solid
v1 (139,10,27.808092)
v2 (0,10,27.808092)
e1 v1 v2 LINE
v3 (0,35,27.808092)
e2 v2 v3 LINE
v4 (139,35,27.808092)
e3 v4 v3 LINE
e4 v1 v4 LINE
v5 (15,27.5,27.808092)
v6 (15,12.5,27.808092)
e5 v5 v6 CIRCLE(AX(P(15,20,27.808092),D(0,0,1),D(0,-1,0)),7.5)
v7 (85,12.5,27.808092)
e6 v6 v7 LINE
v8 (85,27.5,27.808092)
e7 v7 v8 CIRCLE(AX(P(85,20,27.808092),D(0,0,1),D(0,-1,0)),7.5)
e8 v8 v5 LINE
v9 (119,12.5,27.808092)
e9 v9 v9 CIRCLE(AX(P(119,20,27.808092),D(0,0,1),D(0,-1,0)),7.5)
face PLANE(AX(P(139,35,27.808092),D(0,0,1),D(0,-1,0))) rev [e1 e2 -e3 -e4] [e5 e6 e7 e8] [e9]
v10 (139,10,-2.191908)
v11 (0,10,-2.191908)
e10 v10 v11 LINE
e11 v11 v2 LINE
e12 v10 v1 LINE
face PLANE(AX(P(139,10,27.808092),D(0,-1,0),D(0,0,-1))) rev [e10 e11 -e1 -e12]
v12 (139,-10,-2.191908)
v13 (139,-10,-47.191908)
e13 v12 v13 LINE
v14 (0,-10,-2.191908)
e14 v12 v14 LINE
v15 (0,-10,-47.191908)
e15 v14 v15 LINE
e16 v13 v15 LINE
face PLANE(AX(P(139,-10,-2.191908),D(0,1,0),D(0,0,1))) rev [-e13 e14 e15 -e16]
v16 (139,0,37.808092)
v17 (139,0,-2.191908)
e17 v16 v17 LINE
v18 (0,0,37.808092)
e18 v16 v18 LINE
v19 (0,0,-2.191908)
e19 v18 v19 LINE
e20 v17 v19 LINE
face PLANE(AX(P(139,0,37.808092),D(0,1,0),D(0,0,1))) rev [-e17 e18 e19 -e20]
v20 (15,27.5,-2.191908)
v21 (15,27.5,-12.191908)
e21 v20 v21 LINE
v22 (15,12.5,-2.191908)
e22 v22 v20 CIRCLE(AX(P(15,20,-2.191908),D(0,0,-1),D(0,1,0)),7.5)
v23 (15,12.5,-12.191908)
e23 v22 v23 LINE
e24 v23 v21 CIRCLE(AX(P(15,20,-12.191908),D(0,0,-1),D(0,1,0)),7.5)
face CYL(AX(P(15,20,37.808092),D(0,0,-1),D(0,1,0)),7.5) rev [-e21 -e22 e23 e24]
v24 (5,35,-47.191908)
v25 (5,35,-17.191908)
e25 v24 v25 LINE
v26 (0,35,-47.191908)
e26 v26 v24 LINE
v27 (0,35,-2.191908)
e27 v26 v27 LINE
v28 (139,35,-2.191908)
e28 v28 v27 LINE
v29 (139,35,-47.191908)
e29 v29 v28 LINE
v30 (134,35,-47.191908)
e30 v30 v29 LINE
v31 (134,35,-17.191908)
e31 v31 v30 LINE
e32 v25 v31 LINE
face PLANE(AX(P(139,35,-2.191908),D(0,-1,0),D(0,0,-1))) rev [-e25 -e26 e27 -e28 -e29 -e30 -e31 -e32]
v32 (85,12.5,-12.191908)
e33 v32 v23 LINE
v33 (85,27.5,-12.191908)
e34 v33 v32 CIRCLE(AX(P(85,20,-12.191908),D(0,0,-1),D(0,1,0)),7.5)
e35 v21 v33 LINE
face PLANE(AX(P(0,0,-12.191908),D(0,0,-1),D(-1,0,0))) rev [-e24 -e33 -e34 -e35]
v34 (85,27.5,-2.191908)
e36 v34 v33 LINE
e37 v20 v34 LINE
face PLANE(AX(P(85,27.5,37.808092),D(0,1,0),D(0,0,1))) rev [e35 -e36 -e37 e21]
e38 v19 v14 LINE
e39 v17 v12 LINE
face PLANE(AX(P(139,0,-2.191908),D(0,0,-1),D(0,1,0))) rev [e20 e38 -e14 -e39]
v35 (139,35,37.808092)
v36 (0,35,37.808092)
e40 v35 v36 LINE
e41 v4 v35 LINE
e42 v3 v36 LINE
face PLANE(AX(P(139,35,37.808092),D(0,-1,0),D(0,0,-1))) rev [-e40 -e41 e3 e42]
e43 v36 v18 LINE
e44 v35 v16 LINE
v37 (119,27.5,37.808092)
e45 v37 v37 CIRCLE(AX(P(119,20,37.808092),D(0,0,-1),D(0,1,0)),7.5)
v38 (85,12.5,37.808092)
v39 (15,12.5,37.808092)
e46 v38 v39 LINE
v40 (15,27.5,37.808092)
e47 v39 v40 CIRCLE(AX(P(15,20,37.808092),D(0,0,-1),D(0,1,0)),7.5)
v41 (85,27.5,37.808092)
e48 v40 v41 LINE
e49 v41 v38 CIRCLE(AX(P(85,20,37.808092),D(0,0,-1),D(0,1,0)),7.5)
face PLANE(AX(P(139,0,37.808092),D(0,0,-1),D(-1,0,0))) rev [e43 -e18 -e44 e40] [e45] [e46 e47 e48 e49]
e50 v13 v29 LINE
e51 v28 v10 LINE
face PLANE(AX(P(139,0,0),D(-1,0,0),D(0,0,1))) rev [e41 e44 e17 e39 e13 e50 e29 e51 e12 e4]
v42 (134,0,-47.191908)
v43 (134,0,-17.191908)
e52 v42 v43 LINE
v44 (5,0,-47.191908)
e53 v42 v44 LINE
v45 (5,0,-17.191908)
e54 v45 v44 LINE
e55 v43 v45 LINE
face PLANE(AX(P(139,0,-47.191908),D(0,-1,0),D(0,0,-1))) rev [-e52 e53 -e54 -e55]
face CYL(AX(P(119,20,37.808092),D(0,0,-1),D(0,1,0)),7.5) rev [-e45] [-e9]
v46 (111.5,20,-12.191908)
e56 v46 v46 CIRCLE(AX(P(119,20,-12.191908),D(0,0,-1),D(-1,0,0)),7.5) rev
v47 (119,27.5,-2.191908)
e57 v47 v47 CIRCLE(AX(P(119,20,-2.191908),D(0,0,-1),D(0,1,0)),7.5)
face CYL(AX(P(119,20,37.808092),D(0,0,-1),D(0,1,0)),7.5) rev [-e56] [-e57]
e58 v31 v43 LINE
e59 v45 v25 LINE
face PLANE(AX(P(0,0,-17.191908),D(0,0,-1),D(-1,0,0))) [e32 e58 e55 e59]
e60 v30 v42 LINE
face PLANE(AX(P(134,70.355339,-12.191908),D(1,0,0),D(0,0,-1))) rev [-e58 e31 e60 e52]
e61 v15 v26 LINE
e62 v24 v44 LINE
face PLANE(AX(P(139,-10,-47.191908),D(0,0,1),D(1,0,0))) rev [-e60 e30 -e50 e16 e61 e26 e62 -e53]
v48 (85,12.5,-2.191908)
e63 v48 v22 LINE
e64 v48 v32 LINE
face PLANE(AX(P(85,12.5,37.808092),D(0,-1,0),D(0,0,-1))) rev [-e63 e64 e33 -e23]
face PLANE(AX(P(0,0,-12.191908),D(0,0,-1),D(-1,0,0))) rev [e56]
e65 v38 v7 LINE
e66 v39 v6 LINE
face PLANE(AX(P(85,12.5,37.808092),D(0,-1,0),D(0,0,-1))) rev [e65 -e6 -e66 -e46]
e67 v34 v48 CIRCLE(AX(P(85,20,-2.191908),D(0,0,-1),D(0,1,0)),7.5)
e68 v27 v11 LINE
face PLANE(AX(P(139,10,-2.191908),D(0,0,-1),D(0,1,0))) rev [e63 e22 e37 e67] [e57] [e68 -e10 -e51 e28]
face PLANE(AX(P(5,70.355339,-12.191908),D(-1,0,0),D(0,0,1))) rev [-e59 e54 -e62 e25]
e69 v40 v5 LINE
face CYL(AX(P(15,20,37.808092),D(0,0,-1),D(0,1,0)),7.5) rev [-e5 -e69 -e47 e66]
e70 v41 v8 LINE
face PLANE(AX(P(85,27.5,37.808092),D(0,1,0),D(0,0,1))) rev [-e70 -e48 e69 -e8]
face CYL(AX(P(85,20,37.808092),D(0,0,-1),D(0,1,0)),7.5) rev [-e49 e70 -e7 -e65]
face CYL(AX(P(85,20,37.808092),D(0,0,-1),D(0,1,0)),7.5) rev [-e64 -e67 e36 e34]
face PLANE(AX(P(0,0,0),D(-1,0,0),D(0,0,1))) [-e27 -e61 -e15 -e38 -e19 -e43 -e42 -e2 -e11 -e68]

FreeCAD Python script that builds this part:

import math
import FreeCAD as App
import Part
import Sketcher
from FreeCAD import Vector

doc = App.newDocument("Part")
params = doc.addObject("Spreadsheet::Sheet", "Params")
for row, (alias, value) in enumerate([
    ("sketch1_width", "25 mm"),
    ("sketch1_width2", "35 mm"),
    ("sketch1_height", "40 mm"),
    ("pad1_length", "139 mm"),
    ("sketch2_diameter", "15 mm"),
    ("sketch2_width", "70 mm"),
    ("sketch3_width", "5 mm"),
    ("sketch3_height", "35 mm"),
    ("pad2_length", "35 mm"),
    ("sketch4_width", "129 mm"),
    ("sketch4_height", "35 mm"),
    ("pad3_length", "5 mm"),
], start=1):
    params.set(f"A{row}", alias)
    params.set(f"B{row}", "=" + value)
    params.setAlias(f"B{row}", alias)

body = doc.addObject("PartDesign::Body", "Body")

sketch1 = body.newObject("Sketcher::SketchObject", "Sketch")
sketch1.AttachmentSupport = (doc.getObject("YZ_Plane"), [""])
sketch1.MapMode = "FlatFace"
sketch1.addGeometry([
    Part.LineSegment(Vector(10, 27.808092, 0), Vector(35, 27.808092, 0)),
    Part.LineSegment(Vector(35, 27.808092, 0), Vector(35, 37.808092, 0)),
    Part.LineSegment(Vector(35, 37.808092, 0), Vector(0, 37.808092, 0)),
    Part.LineSegment(Vector(0, 37.808092, 0), Vector(0, -2.191908, 0)),
    Part.LineSegment(Vector(0, -2.191908, 0), Vector(-10, -2.191908, 0)),
    Part.LineSegment(Vector(-10, -2.191908, 0), Vector(-10, -47.191908, 0)),
    Part.LineSegment(Vector(-10, -47.191908, 0), Vector(0, -47.191908, 0)),
    Part.LineSegment(Vector(0, -47.191908, 0), Vector(0, -12.191908, 0)),
    Part.LineSegment(Vector(0, -12.191908, 0), Vector(35, -12.191908, 0)),
    Part.LineSegment(Vector(35, -12.191908, 0), Vector(35, -2.191908, 0)),
    Part.LineSegment(Vector(35, -2.191908, 0), Vector(10, -2.191908, 0)),
    Part.LineSegment(Vector(10, -2.191908, 0), Vector(10, 27.808092, 0)),
], False)
sketch1.addConstraint([
    Sketcher.Constraint("Coincident", 0, 2, 1, 1),
    Sketcher.Constraint("Coincident", 1, 2, 2, 1),
    Sketcher.Constraint("Coincident", 2, 2, 3, 1),
    Sketcher.Constraint("Coincident", 3, 2, 4, 1),
    Sketcher.Constraint("Coincident", 4, 2, 5, 1),
    Sketcher.Constraint("Coincident", 5, 2, 6, 1),
    Sketcher.Constraint("Coincident", 6, 2, 7, 1),
    Sketcher.Constraint("Coincident", 7, 2, 8, 1),
    Sketcher.Constraint("Coincident", 8, 2, 9, 1),
    Sketcher.Constraint("Coincident", 9, 2, 10, 1),
    Sketcher.Constraint("Coincident", 10, 2, 11, 1),
    Sketcher.Constraint("Coincident", 11, 2, 0, 1),
    Sketcher.Constraint("Horizontal", 0),
    Sketcher.Constraint("Vertical", 1),
    Sketcher.Constraint("Horizontal", 2),
    Sketcher.Constraint("Vertical", 3),
    Sketcher.Constraint("Horizontal", 4),
    Sketcher.Constraint("Vertical", 5),
    Sketcher.Constraint("Horizontal", 6),
    Sketcher.Constraint("Vertical", 7),
    Sketcher.Constraint("Horizontal", 8),
    Sketcher.Constraint("Vertical", 9),
    Sketcher.Constraint("Horizontal", 10),
    Sketcher.Constraint("Vertical", 11),
    Sketcher.Constraint("Symmetric", 4, 2, 10, 2, -2),
    Sketcher.Constraint("PointOnObject", 2, 2, -2),
    Sketcher.Constraint("PointOnObject", 6, 2, -2),
    Sketcher.Constraint("Vertical", 1, 2, 8, 2),
    Sketcher.Constraint("Equal", 6, 1),
    Sketcher.Constraint("Equal", 8, 7),
    Sketcher.Constraint("Equal", 1, 9),
    Sketcher.Constraint("DistanceX", 0, 1, 0, 2, 25.0),
    Sketcher.Constraint("DistanceX", 2, 2, 2, 1, 35.0),
    Sketcher.Constraint("DistanceY", 3, 2, 3, 1, 40.0),
    Sketcher.Constraint("DistanceY", -1, 1, 0, 2, 27.808092),
])
sketch1.setExpression("Constraints[31]", "Params.sketch1_width")
sketch1.setExpression("Constraints[32]", "Params.sketch1_width2")
sketch1.setExpression("Constraints[33]", "Params.sketch1_height")
pad1 = body.newObject("PartDesign::Pad", "Pad")
pad1.Profile = sketch1
pad1.setExpression("Length", "Params.pad1_length")

sketch2 = body.newObject("Sketcher::SketchObject", "Sketch001")
sketch2.AttachmentSupport = (doc.getObject("XY_Plane"), [""])
sketch2.MapMode = "FlatFace"
sketch2.AttachmentOffset = App.Placement(Vector(0, 0, -12.191908), App.Rotation())
sketch2.addGeometry([
    Part.Circle(Vector(119, 20, 0), Vector(0, 0, 1), 7.5),
    Part.LineSegment(Vector(15, 27.5, 0), Vector(85, 27.5, 0)),
    Part.ArcOfCircle(Part.Circle(Vector(85, 20, 0), Vector(0, 0, 1), 7.5), math.radians(-90), math.radians(90)),
    Part.LineSegment(Vector(85, 12.5, 0), Vector(15, 12.5, 0)),
    Part.ArcOfCircle(Part.Circle(Vector(15, 20, 0), Vector(0, 0, 1), 7.5), math.radians(90), math.radians(270)),
], False)
sketch2.addConstraint([
    Sketcher.Constraint("Tangent", 1, 2, 2, 2),
    Sketcher.Constraint("Tangent", 2, 1, 3, 1),
    Sketcher.Constraint("Tangent", 3, 2, 4, 2),
    Sketcher.Constraint("Tangent", 4, 1, 1, 1),
    Sketcher.Constraint("Horizontal", 1),
    Sketcher.Constraint("Horizontal", 3),
    Sketcher.Constraint("Equal", 0, 2),
    Sketcher.Constraint("Horizontal", 0, 3, 2, 3),
    Sketcher.Constraint("Diameter", 0, 15.0),
    Sketcher.Constraint("DistanceX", 1, 1, 1, 2, 70.0),
    Sketcher.Constraint("DistanceX", -1, 1, 0, 3, 119.0),
    Sketcher.Constraint("DistanceY", -1, 1, 0, 3, 20.0),
    Sketcher.Constraint("DistanceX", -1, 1, 2, 3, 85.0),
])
sketch2.setExpression("Constraints[8]", "Params.sketch2_diameter")
sketch2.setExpression("Constraints[9]", "Params.sketch2_width")
pocket1 = body.newObject("PartDesign::Pocket", "Pocket")
pocket1.Profile = sketch2
pocket1.Type = "ThroughAll"
pocket1.Reversed = True

sketch3 = body.newObject("Sketcher::SketchObject", "Sketch002")
sketch3.AttachmentSupport = (doc.getObject("XZ_Plane"), [""])
sketch3.MapMode = "FlatFace"
sketch3.addGeometry([
    Part.LineSegment(Vector(0, -47.191908, 0), Vector(0, -12.191908, 0)),
    Part.LineSegment(Vector(0, -12.191908, 0), Vector(5, -12.191908, 0)),
    Part.LineSegment(Vector(5, -12.191908, 0), Vector(5, -47.191908, 0)),
    Part.LineSegment(Vector(5, -47.191908, 0), Vector(0, -47.191908, 0)),
    Part.LineSegment(Vector(134, -47.191908, 0), Vector(134, -12.191908, 0)),
    Part.LineSegment(Vector(134, -12.191908, 0), Vector(139, -12.191908, 0)),
    Part.LineSegment(Vector(139, -12.191908, 0), Vector(139, -47.191908, 0)),
    Part.LineSegment(Vector(139, -47.191908, 0), Vector(134, -47.191908, 0)),
], False)
sketch3.addConstraint([
    Sketcher.Constraint("Coincident", 0, 2, 1, 1),
    Sketcher.Constraint("Coincident", 1, 2, 2, 1),
    Sketcher.Constraint("Coincident", 2, 2, 3, 1),
    Sketcher.Constraint("Coincident", 3, 2, 0, 1),
    Sketcher.Constraint("Coincident", 4, 2, 5, 1),
    Sketcher.Constraint("Coincident", 5, 2, 6, 1),
    Sketcher.Constraint("Coincident", 6, 2, 7, 1),
    Sketcher.Constraint("Coincident", 7, 2, 4, 1),
    Sketcher.Constraint("Vertical", 0),
    Sketcher.Constraint("Horizontal", 1),
    Sketcher.Constraint("Vertical", 2),
    Sketcher.Constraint("Horizontal", 3),
    Sketcher.Constraint("Vertical", 4),
    Sketcher.Constraint("Horizontal", 5),
    Sketcher.Constraint("Vertical", 6),
    Sketcher.Constraint("Horizontal", 7),
    Sketcher.Constraint("PointOnObject", 0, 2, -2),
    Sketcher.Constraint("Horizontal", 1, 2, 4, 2),
    Sketcher.Constraint("Horizontal", 3, 2, 6, 2),
    Sketcher.Constraint("Equal", 3, 5),
    Sketcher.Constraint("DistanceX", 1, 1, 1, 2, 5.0),
    Sketcher.Constraint("DistanceY", 0, 1, 0, 2, 35.0),
    Sketcher.Constraint("DistanceX", -1, 1, 4, 2, 134.0),
    Sketcher.Constraint("DistanceY", 0, 2, -1, 1, 12.191908),
])
sketch3.setExpression("Constraints[20]", "Params.sketch3_width")
sketch3.setExpression("Constraints[21]", "Params.sketch3_height")
pad2 = body.newObject("PartDesign::Pad", "Pad001")
pad2.Profile = sketch3
pad2.setExpression("Length", "Params.pad2_length")
pad2.Reversed = True

sketch4 = body.newObject("Sketcher::SketchObject", "Sketch003")
sketch4.AttachmentSupport = (doc.getObject("XY_Plane"), [""])
sketch4.MapMode = "FlatFace"
sketch4.AttachmentOffset = App.Placement(Vector(0, 0, -12.191908), App.Rotation())
sketch4.addGeometry([
    Part.LineSegment(Vector(134, 35, 0), Vector(134, 0, 0)),
    Part.LineSegment(Vector(134, 0, 0), Vector(5, 0, 0)),
    Part.LineSegment(Vector(5, 0, 0), Vector(5, 35, 0)),
    Part.LineSegment(Vector(5, 35, 0), Vector(134, 35, 0)),
], False)
sketch4.addConstraint([
    Sketcher.Constraint("Coincident", 0, 2, 1, 1),
    Sketcher.Constraint("Coincident", 1, 2, 2, 1),
    Sketcher.Constraint("Coincident", 2, 2, 3, 1),
    Sketcher.Constraint("Coincident", 3, 2, 0, 1),
    Sketcher.Constraint("Vertical", 0),
    Sketcher.Constraint("Horizontal", 1),
    Sketcher.Constraint("Vertical", 2),
    Sketcher.Constraint("Horizontal", 3),
    Sketcher.Constraint("PointOnObject", 0, 2, -1),
    Sketcher.Constraint("DistanceX", 1, 2, 1, 1, 129.0),
    Sketcher.Constraint("DistanceY", 0, 2, 0, 1, 35.0),
    Sketcher.Constraint("DistanceX", -1, 1, 0, 2, 134.0),
])
sketch4.setExpression("Constraints[9]", "Params.sketch4_width")
sketch4.setExpression("Constraints[10]", "Params.sketch4_height")
pad3 = body.newObject("PartDesign::Pad", "Pad002")
pad3.Profile = sketch4
pad3.setExpression("Length", "Params.pad3_length")
pad3.Reversed = True

doc.recompute()
